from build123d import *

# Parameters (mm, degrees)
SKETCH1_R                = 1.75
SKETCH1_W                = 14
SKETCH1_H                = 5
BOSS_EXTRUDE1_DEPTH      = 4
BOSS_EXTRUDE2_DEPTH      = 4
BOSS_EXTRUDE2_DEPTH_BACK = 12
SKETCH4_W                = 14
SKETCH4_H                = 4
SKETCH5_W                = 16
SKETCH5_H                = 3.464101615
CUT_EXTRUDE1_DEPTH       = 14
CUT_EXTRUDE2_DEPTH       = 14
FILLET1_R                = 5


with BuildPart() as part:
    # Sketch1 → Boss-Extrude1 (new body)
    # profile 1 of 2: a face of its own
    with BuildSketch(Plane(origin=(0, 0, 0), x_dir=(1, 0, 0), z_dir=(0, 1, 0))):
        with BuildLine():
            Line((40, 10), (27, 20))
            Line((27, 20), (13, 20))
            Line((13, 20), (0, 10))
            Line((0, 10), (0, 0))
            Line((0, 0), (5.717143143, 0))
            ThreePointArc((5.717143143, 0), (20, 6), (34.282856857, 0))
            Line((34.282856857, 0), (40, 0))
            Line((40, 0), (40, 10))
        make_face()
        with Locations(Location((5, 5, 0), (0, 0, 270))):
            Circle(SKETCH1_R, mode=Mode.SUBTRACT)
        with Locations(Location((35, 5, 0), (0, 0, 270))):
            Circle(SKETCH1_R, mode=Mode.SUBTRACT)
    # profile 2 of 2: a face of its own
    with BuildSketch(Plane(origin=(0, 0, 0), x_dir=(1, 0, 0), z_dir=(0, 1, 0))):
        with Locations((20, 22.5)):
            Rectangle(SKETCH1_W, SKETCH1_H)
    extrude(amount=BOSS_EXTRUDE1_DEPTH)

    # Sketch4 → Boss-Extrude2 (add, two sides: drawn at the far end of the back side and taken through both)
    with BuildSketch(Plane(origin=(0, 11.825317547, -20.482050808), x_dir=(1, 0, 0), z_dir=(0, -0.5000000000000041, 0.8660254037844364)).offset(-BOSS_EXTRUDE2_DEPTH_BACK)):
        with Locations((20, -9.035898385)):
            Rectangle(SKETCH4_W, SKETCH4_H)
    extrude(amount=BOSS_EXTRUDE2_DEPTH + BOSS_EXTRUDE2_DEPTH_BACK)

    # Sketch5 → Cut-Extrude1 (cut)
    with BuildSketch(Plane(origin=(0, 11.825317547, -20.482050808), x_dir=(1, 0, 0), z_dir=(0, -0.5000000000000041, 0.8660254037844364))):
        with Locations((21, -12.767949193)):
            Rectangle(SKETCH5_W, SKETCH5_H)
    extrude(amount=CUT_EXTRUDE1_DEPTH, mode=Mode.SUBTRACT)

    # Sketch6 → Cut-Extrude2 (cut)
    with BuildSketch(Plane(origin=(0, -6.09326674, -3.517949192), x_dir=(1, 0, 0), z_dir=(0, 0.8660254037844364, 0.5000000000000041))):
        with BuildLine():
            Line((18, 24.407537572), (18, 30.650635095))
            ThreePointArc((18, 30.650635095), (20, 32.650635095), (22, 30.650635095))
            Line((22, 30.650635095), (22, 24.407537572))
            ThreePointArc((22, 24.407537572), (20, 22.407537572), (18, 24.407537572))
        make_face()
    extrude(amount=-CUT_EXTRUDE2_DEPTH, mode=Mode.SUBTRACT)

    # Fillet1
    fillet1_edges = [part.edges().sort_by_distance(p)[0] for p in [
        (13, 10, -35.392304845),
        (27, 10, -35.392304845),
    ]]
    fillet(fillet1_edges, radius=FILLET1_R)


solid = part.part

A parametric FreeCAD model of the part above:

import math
import FreeCAD as App
import Part
import Sketcher
from FreeCAD import Vector
Q = App.Units.Quantity


def edges_at(feature, points):
    """Names of the edges that pass closest to the given points."""
    edges = feature.Shape.Edges
    near = lambda p: min(range(len(edges)), key=lambda i: edges[i].distToShape(Part.Vertex(*p))[0])
    return sorted({f"Edge{near(p) + 1}" for p in points})


def add_polygon(sketch, points):
    """Adds a closed chain of lines whose ends are joined by coincident constraints."""
    first, n = sketch.GeometryCount, len(points)
    for a, b in zip(points, points[1:] + points[:1]):
        sketch.addGeometry(Part.LineSegment(App.Vector(*a, 0), App.Vector(*b, 0)), False)
    for i in range(n):
        sketch.addConstraint(Sketcher.Constraint("Coincident", first + i, 2, first + (i + 1) % n, 1))

doc = App.newDocument("Part")
body = doc.addObject("PartDesign::Body", "Body")

sketch1 = body.newObject("Sketcher::SketchObject", "Sketch")
sketch1.AttachmentSupport = (doc.getObject("XZ_Plane"), [""])
sketch1.MapMode = "FlatFace"
sketch1.addGeometry(Part.LineSegment(Vector(40, -10, 0), Vector(27, -20, 0)), False)
sketch1.addGeometry(Part.LineSegment(Vector(27, -20, 0), Vector(27, -25, 0)), False)
sketch1.addGeometry(Part.LineSegment(Vector(27, -25, 0), Vector(13, -25, 0)), False)
sketch1.addGeometry(Part.LineSegment(Vector(13, -25, 0), Vector(13, -20, 0)), False)
sketch1.addGeometry(Part.LineSegment(Vector(13, -20, 0), Vector(0, -10, 0)), False)
sketch1.addGeometry(Part.LineSegment(Vector(0, -10, 0), Vector(0, 0, 0)), False)
sketch1.addGeometry(Part.LineSegment(Vector(0, 0, 0), Vector(5.7, 0, 0)), False)
sketch1.addGeometry(Part.ArcOfCircle(Part.Circle(Vector(20, 14, 0), Vector(0, 0, 1), 20), math.radians(-136), math.radians(-44)), False)
sketch1.addGeometry(Part.LineSegment(Vector(34.3, 0, 0), Vector(40, 0, 0)), False)
sketch1.addGeometry(Part.LineSegment(Vector(40, 0, 0), Vector(40, -10, 0)), False)
sketch1.addGeometry(Part.Circle(Vector(5, -5, 0), Vector(0, 0, 1), 1.8), False)
sketch1.addGeometry(Part.Circle(Vector(35, -5, 0), Vector(0, 0, 1), 1.8), False)
sketch1.addConstraint(Sketcher.Constraint("Coincident", 0, 2, 1, 1))
sketch1.addConstraint(Sketcher.Constraint("Coincident", 1, 2, 2, 1))
sketch1.addConstraint(Sketcher.Constraint("Coincident", 2, 2, 3, 1))
sketch1.addConstraint(Sketcher.Constraint("Coincident", 3, 2, 4, 1))
sketch1.addConstraint(Sketcher.Constraint("Coincident", 4, 2, 5, 1))
sketch1.addConstraint(Sketcher.Constraint("Coincident", 5, 2, 6, 1))
sketch1.addConstraint(Sketcher.Constraint("Coincident", 6, 2, 7, 1))
sketch1.addConstraint(Sketcher.Constraint("Coincident", 7, 2, 8, 1))
sketch1.addConstraint(Sketcher.Constraint("Coincident", 8, 2, 9, 1))
sketch1.addConstraint(Sketcher.Constraint("Coincident", 9, 2, 0, 1))
sketch1.addConstraint(Sketcher.Constraint("Vertical", 1))
sketch1.addConstraint(Sketcher.Constraint("Horizontal", 2))
sketch1.addConstraint(Sketcher.Constraint("Vertical", 3))
sketch1.addConstraint(Sketcher.Constraint("Vertical", 5))
sketch1.addConstraint(Sketcher.Constraint("Horizontal", 6))
sketch1.addConstraint(Sketcher.Constraint("Horizontal", 8))
sketch1.addConstraint(Sketcher.Constraint("Vertical", 9))
sketch1.addConstraint(Sketcher.Constraint("Coincident", 5, 2, -1, 1))
sketch1.addConstraint(Sketcher.Constraint("Equal", 10, 11))
sketch1.addConstraint(Sketcher.Constraint("PointOnObject", 7, 2, -1))
sketch1.addConstraint(Sketcher.Constraint("Horizontal", 10, 3, 11, 3))
sketch1.addConstraint(Sketcher.Constraint("Horizontal", 0, 2, 3, 2))
sketch1.addConstraint(Sketcher.Constraint("Horizontal", 4, 2, 9, 2))
sketch1.addConstraint(Sketcher.Constraint("Equal", 6, 8))
sketch1.addConstraint(Sketcher.Constraint("Equal", 0, 4))
sketch1.addConstraint(Sketcher.Constraint("Radius", 7, Q("20 mm")))
sketch1.addConstraint(Sketcher.Constraint("Diameter", 10, Q("3.5 mm")))
sketch1.addConstraint(Sketcher.Constraint("DistanceX", 2, 2, 2, 1, Q("14 mm")))
sketch1.addConstraint(Sketcher.Constraint("DistanceY", 1, 2, 1, 1, Q("5 mm")))
sketch1.addConstraint(Sketcher.Constraint("DistanceY", 5, 1, 5, 2, Q("10 mm")))
sketch1.addConstraint(Sketcher.Constraint("DistanceX", -1, 1, 7, 3, Q("20 mm")))
sketch1.addConstraint(Sketcher.Constraint("DistanceY", -1, 1, 7, 3, Q("14 mm")))
sketch1.addConstraint(Sketcher.Constraint("DistanceX", -1, 1, 10, 3, Q("5 mm")))
sketch1.addConstraint(Sketcher.Constraint("DistanceY", 10, 3, -1, 1, Q("5 mm")))
sketch1.addConstraint(Sketcher.Constraint("DistanceX", -1, 1, 11, 3, Q("35 mm")))
sketch1.addConstraint(Sketcher.Constraint("DistanceY", 0, 2, -1, 1, Q("20 mm")))
pad1 = body.newObject("PartDesign::Pad", "Pad")
pad1.Profile = sketch1
pad1.Length = 4
pad1.Reversed = True

sketch2 = body.newObject("Sketcher::SketchObject", "Sketch001")
sketch2.Placement = App.Placement(Vector(0, 11.825318, -20.482051), App.Rotation(Vector(1, 0, 0), Vector(0, 0.866025404, 0.5), Vector(0, -0.5, 0.866025404), "ZXY"))
add_polygon(sketch2, [(13, -7), (13, -11), (27, -11), (27, -7)])
sketch2.addConstraint(Sketcher.Constraint("Vertical", 0))
sketch2.addConstraint(Sketcher.Constraint("Horizontal", 1))
sketch2.addConstraint(Sketcher.Constraint("Vertical", 2))
sketch2.addConstraint(Sketcher.Constraint("Horizontal", 3))
sketch2.addConstraint(Sketcher.Constraint("DistanceX", 1, 1, 1, 2, Q("14 mm")))
sketch2.addConstraint(Sketcher.Constraint("DistanceY", 0, 2, 0, 1, Q("4 mm")))
sketch2.addConstraint(Sketcher.Constraint("DistanceX", -1, 1, 0, 2, Q("13 mm")))
sketch2.addConstraint(Sketcher.Constraint("DistanceY", 0, 2, -1, 1, Q("11.035898 mm")))
pad2 = body.newObject("PartDesign::Pad", "Pad001")
pad2.Profile = sketch2
pad2.Type = "TwoLengths"
pad2.Length = 4
pad2.Length2 = 12

sketch3 = body.newObject("Sketcher::SketchObject", "Sketch002")
sketch3.Placement = App.Placement(Vector(0, 11.825318, -20.482051), App.Rotation(Vector(1, 0, 0), Vector(0, 0.866025404, 0.5), Vector(0, -0.5, 0.866025404), "ZXY"))
add_polygon(sketch3, [(13, -11), (13, -14.5), (29, -14.5), (29, -11)])
sketch3.addConstraint(Sketcher.Constraint("Vertical", 0))
sketch3.addConstraint(Sketcher.Constraint("Horizontal", 1))
sketch3.addConstraint(Sketcher.Constraint("Vertical", 2))
sketch3.addConstraint(Sketcher.Constraint("Horizontal", 3))
sketch3.addConstraint(Sketcher.Constraint("DistanceX", 1, 1, 1, 2, Q("16 mm")))
sketch3.addConstraint(Sketcher.Constraint("DistanceX", -1, 1, 0, 2, Q("13 mm")))
sketch3.addConstraint(Sketcher.Constraint("DistanceY", 0, 2, -1, 1, Q("14.5 mm")))
sketch3.addConstraint(Sketcher.Constraint("DistanceY", 0, 2, 0, 1, Q("3.464102 mm")))
pocket1 = body.newObject("PartDesign::Pocket", "Pocket")
pocket1.Profile = sketch3
pocket1.Length = 14
pocket1.Reversed = True

sketch4 = body.newObject("Sketcher::SketchObject", "Sketch003")
sketch4.Placement = App.Placement(Vector(0, -6.093267, -3.517949), App.Rotation(Vector(1, 0, 0), Vector(0, 0.5, -0.866025404), Vector(0, 0.866025404, 0.5), "ZXY"))
sketch4.addGeometry(Part.LineSegment(Vector(18, 30.7, 0), Vector(18, 24.4, 0)), False)
sketch4.addGeometry(Part.ArcOfCircle(Part.Circle(Vector(20, 24.4, 0), Vector(0, 0, 1), 2), math.radians(180), math.radians(360)), False)
sketch4.addGeometry(Part.LineSegment(Vector(22, 24.4, 0), Vector(22, 30.7, 0)), False)
sketch4.addGeometry(Part.ArcOfCircle(Part.Circle(Vector(20, 30.7, 0), Vector(0, 0, 1), 2), math.radians(0), math.radians(180)), False)
sketch4.addConstraint(Sketcher.Constraint("Tangent", 0, 2, 1, 1))
sketch4.addConstraint(Sketcher.Constraint("Tangent", 1, 2, 2, 1))
sketch4.addConstraint(Sketcher.Constraint("Tangent", 2, 2, 3, 1))
sketch4.addConstraint(Sketcher.Constraint("Tangent", 3, 2, 0, 1))
sketch4.addConstraint(Sketcher.Constraint("Vertical", 0))
sketch4.addConstraint(Sketcher.Constraint("Vertical", 2))
sketch4.addConstraint(Sketcher.Constraint("Radius", 1, Q("2 mm")))
sketch4.addConstraint(Sketcher.Constraint("DistanceX", -1, 1, 1, 3, Q("20 mm")))
sketch4.addConstraint(Sketcher.Constraint("DistanceY", 0, 2, 0, 1, Q("6.243098 mm")))
sketch4.addConstraint(Sketcher.Constraint("DistanceY", -1, 1, 1, 3, Q("24.407538 mm")))
pocket2 = body.newObject("PartDesign::Pocket", "Pocket001")
pocket2.Profile = sketch4
pocket2.Length = 14
doc.recompute()

fillet = body.newObject("PartDesign::Fillet", "Fillet")
fillet.Base = (pocket2, edges_at(pocket2, [(13, 10, -35.392), (27, 10, -35.392)]))
fillet.Radius = 5

doc.recompute()
